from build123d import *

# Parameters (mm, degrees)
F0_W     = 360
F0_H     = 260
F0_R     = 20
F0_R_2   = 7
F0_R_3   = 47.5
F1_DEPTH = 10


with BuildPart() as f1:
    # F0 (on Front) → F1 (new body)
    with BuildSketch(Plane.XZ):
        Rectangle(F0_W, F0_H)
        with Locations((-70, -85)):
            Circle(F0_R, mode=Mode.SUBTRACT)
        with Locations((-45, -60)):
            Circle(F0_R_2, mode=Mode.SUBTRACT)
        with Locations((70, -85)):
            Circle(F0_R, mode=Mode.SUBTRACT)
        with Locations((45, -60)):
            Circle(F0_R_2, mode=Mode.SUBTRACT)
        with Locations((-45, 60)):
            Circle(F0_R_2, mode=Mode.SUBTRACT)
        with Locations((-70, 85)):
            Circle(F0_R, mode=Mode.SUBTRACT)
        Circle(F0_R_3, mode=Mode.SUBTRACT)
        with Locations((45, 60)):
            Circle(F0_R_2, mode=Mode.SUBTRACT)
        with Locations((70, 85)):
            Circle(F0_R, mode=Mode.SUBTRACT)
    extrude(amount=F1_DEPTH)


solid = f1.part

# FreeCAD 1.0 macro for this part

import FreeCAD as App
import Part
import Sketcher
from FreeCAD import Vector


def add_polygon(sketch, points):
    """Adds a closed chain of lines whose ends are joined by coincident constraints."""
    first, n = sketch.GeometryCount, len(points)
    for a, b in zip(points, points[1:] + points[:1]):
        sketch.addGeometry(Part.LineSegment(App.Vector(*a, 0), App.Vector(*b, 0)), False)
    for i in range(n):
        sketch.addConstraint(Sketcher.Constraint("Coincident", first + i, 2, first + (i + 1) % n, 1))

doc = App.newDocument("Part")
body = doc.addObject("PartDesign::Body", "Body")

sketch1 = doc.addObject("Sketcher::SketchObject", "Sketch")
body.addObject(sketch1)
sketch1.AttachmentSupport = (doc.XZ_Plane, [""])
sketch1.MapMode = "FlatFace"
add_polygon(sketch1, [(-180, 130), (-180, -130), (180, -130), (180, 130)])
sketch1.addGeometry(Part.Circle(Vector(-70, -85, 0), Vector(0, 0, 1), 20), False)
sketch1.addGeometry(Part.Circle(Vector(-45, -60, 0), Vector(0, 0, 1), 7), False)
sketch1.addGeometry(Part.Circle(Vector(70, -85, 0), Vector(0, 0, 1), 20), False)
sketch1.addGeometry(Part.Circle(Vector(45, -60, 0), Vector(0, 0, 1), 7), False)
sketch1.addGeometry(Part.Circle(Vector(-70, 85, 0), Vector(0, 0, 1), 20), False)
sketch1.addGeometry(Part.Circle(Vector(-45, 60, 0), Vector(0, 0, 1), 7), False)
sketch1.addGeometry(Part.Circle(Vector(0, 0, 0), Vector(0, 0, 1), 47.5), False)
sketch1.addGeometry(Part.Circle(Vector(45, 60, 0), Vector(0, 0, 1), 7), False)
sketch1.addGeometry(Part.Circle(Vector(70, 85, 0), Vector(0, 0, 1), 20), False)
sketch1.addConstraint([
    Sketcher.Constraint("Vertical", 0),
    Sketcher.Constraint("Horizontal", 1),
    Sketcher.Constraint("Vertical", 2),
    Sketcher.Constraint("Horizontal", 3),
    Sketcher.Constraint("Coincident", 10, 3, -1, 1),
    Sketcher.Constraint("Equal", 4, 6),
    Sketcher.Constraint("Equal", 5, 7),
    Sketcher.Constraint("Equal", 6, 8),
    Sketcher.Constraint("Equal", 7, 9),
    Sketcher.Constraint("Equal", 9, 11),
    Sketcher.Constraint("Equal", 8, 12),
    Sketcher.Constraint("Symmetric", 6, 3, 8, 3, -1, 1),
    Sketcher.Constraint("Symmetric", 7, 3, 9, 3, -1, 1),
    Sketcher.Constraint("Symmetric", 5, 3, 11, 3, -1, 1),
    Sketcher.Constraint("Symmetric", 4, 3, 12, 3, -1, 1),
    Sketcher.Constraint("Symmetric", 0, 2, 2, 2, -1, 1),
    Sketcher.Constraint("Symmetric", 4, 3, 6, 3, -2),
    Sketcher.Constraint("Symmetric", 5, 3, 7, 3, -2),
    Sketcher.Constraint("Diameter", 4, 40.0),
    Sketcher.Constraint("Diameter", 5, 14.0),
    Sketcher.Constraint("Diameter", 10, 95.0),
    Sketcher.Constraint("DistanceX", 1, 1, 1, 2, 360.0),
    Sketcher.Constraint("DistanceY", 0, 2, 0, 1, 260.0),
    Sketcher.Constraint("DistanceX", 4, 3, -1, 1, 70.0),
    Sketcher.Constraint("DistanceY", 4, 3, -1, 1, 85.0),
    Sketcher.Constraint("DistanceX", 5, 3, -1, 1, 45.0),
    Sketcher.Constraint("DistanceY", 5, 3, -1, 1, 60.0),
])
pad1 = doc.addObject("PartDesign::Pad", "Pad")
body.addObject(pad1)
pad1.Profile = sketch1
pad1.Length = 10

doc.recompute()
